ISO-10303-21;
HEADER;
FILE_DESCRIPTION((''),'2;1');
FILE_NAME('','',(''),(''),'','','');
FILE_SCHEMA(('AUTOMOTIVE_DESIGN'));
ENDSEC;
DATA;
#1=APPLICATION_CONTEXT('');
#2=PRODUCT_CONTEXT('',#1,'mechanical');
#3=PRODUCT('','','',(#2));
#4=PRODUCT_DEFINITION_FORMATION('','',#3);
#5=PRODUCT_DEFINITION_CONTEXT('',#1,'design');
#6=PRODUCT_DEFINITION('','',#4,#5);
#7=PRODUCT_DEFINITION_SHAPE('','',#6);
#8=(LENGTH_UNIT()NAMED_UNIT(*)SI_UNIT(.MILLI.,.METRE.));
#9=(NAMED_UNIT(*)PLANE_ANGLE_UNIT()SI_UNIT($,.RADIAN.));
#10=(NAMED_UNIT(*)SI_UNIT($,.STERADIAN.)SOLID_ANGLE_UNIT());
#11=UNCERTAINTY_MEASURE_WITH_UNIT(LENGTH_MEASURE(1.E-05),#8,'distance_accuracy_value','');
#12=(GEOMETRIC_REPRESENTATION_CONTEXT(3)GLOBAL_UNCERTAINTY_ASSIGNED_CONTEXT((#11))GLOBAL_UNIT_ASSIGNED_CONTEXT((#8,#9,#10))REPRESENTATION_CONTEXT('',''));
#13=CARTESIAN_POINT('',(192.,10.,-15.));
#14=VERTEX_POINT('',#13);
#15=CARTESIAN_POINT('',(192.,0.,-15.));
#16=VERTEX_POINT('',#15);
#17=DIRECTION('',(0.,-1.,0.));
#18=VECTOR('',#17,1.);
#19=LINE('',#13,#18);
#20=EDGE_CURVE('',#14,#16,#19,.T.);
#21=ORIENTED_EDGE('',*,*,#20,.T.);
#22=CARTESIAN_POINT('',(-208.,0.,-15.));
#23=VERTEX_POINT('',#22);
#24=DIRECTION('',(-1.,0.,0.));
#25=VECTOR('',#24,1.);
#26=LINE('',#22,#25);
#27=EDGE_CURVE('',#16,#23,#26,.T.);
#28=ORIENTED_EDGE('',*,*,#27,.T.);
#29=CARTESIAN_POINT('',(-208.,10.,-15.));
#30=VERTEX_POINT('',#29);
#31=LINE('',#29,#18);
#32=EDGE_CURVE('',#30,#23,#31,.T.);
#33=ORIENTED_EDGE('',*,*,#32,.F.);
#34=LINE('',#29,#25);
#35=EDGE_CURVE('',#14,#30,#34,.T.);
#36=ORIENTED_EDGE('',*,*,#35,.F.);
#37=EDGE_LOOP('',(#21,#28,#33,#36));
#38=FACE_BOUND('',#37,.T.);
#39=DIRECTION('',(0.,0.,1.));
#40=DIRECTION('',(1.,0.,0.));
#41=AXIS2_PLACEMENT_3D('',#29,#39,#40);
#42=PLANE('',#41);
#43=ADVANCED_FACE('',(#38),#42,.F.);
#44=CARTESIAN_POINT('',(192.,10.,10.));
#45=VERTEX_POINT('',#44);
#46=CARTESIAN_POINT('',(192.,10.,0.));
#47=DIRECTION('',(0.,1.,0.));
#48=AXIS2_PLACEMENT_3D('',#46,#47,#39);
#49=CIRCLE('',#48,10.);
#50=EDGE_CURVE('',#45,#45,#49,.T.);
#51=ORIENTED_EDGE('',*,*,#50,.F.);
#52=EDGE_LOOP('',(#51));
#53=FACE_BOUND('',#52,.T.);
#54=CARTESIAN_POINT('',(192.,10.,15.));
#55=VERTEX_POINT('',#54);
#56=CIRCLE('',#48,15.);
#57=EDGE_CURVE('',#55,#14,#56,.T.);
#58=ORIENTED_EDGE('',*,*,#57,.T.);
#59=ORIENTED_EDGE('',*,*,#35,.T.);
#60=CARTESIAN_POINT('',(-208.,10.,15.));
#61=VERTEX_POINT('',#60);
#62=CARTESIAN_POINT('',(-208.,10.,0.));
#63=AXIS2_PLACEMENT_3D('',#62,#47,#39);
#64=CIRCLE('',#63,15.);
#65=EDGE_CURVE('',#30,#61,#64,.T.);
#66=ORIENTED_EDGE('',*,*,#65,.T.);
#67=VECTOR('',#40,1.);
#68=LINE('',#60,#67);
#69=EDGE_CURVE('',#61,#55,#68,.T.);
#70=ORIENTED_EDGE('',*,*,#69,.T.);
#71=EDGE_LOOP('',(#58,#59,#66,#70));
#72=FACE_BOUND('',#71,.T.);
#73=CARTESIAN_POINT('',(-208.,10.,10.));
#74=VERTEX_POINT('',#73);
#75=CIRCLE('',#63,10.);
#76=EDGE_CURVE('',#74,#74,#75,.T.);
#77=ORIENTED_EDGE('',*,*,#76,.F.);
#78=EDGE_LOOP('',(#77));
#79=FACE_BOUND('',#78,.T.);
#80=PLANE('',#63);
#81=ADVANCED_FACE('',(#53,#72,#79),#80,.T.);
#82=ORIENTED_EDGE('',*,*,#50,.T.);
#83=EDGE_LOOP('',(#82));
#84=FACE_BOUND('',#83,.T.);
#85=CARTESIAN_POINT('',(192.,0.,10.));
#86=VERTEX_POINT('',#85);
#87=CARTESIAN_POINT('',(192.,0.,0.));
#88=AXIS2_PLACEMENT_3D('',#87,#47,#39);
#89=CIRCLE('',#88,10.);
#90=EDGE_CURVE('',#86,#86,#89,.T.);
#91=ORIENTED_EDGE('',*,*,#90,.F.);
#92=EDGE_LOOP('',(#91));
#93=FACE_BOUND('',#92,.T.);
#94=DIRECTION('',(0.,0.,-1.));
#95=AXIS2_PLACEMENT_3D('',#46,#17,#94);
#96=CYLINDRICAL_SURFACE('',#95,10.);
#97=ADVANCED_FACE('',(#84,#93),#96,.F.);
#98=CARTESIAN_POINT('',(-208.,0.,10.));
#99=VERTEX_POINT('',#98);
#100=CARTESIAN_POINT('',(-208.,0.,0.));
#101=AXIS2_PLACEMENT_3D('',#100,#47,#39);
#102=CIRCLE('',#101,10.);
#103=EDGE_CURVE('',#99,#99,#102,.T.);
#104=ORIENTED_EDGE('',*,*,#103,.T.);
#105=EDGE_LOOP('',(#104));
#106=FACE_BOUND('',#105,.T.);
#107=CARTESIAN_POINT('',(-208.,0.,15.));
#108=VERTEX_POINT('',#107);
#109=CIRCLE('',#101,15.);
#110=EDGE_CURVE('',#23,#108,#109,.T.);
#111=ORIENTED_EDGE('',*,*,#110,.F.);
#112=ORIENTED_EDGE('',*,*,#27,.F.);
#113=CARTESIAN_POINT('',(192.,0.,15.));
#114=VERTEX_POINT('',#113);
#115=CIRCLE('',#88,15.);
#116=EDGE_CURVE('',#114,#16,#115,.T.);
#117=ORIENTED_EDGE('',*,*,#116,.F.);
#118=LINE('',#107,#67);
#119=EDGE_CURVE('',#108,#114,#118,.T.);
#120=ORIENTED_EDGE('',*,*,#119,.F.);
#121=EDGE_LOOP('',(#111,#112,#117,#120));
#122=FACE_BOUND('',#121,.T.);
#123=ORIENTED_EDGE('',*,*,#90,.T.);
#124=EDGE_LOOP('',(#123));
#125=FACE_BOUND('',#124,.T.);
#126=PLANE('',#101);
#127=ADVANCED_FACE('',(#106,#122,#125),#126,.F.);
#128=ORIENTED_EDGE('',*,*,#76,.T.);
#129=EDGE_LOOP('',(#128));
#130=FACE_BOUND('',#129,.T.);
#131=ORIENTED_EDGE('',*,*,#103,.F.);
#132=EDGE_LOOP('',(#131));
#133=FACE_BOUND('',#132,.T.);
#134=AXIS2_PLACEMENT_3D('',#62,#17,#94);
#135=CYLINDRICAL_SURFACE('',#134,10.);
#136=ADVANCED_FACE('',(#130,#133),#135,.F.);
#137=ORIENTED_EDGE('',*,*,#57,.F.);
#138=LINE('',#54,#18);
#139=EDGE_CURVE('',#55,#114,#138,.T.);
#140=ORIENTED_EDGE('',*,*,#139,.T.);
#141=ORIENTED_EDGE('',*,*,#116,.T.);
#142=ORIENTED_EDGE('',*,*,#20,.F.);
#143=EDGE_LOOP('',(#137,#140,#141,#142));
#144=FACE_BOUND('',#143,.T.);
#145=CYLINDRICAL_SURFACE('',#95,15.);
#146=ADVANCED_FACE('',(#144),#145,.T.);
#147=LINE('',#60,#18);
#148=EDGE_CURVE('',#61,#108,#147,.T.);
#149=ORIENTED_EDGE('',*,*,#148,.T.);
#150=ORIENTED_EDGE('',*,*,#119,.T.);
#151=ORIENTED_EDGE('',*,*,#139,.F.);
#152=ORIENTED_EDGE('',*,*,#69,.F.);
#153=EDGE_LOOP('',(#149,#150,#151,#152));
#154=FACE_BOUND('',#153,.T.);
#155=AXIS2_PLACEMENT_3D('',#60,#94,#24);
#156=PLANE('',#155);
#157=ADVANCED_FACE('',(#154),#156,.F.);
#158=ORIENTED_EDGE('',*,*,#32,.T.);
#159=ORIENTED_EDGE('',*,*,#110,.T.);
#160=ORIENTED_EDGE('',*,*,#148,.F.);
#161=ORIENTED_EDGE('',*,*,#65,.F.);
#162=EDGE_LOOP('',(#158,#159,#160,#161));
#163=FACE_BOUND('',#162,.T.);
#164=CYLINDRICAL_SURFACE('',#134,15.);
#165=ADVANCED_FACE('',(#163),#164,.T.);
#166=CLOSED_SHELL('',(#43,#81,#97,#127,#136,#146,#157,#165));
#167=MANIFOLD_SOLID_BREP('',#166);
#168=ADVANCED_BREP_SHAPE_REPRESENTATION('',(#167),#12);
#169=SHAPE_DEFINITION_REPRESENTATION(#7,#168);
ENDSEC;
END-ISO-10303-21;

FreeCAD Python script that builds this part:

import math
import FreeCAD as App
import Part
import Sketcher

V = App.Vector
Q = App.Units.Quantity

doc = App.newDocument("Part")
params = doc.addObject("Spreadsheet::Sheet", "Params")
for row, (alias, value) in enumerate([
    ("sketch1_diameter", "20 mm"),
    ("sketch1_radius", "15 mm"),
    ("sketch1_width", "400 mm"),
    ("pad1_length", "10 mm"),
], start=1):
    params.set(f"A{row}", alias)
    params.set(f"B{row}", "=" + value)
    params.setAlias(f"B{row}", alias)

body = doc.addObject("PartDesign::Body", "Body")

# Sketch on XZ plane
sketch1 = doc.addObject("Sketcher::SketchObject", "Sketch")
body.addObject(sketch1)
sketch1.AttachmentSupport = (doc.XZ_Plane, [""])
sketch1.MapMode = "FlatFace"
sketch1.addGeometry([
    Part.LineSegment(V(192, -15, 0), V(-208, -15, 0)),  # 0
    Part.ArcOfCircle(Part.Circle(V(-208, 0, 0), V(0, 0, 1), 15), math.radians(90), math.radians(270)),  # 1
    Part.LineSegment(V(-208, 15, 0), V(192, 15, 0)),  # 2
    Part.ArcOfCircle(Part.Circle(V(192, 0, 0), V(0, 0, 1), 15), math.radians(-90), math.radians(90)),  # 3
    Part.Circle(V(192, 0, 0), V(0, 0, 1), 10),  # 4
    Part.Circle(V(-208, 0, 0), V(0, 0, 1), 10),  # 5
], False)
sketch1.addConstraint([
    Sketcher.Constraint("Tangent", 0, 2, 1, 2),
    Sketcher.Constraint("Tangent", 1, 1, 2, 1),
    Sketcher.Constraint("Tangent", 2, 2, 3, 2),
    Sketcher.Constraint("Tangent", 3, 1, 0, 1),
    Sketcher.Constraint("Horizontal", 0),
    Sketcher.Constraint("Horizontal", 2),
    Sketcher.Constraint("Coincident", 4, 3, 3, 3),
    Sketcher.Constraint("Coincident", 5, 3, 1, 3),
    Sketcher.Constraint("Equal", 4, 5),
    Sketcher.Constraint("PointOnObject", 1, 3, -1),
    Sketcher.Constraint("Diameter", 4, Q("20 mm")),
    Sketcher.Constraint("Radius", 1, Q("15 mm")),
    Sketcher.Constraint("DistanceX", 0, 2, 0, 1, Q("400 mm")),
    Sketcher.Constraint("DistanceX", 1, 3, -1, 1, Q("208 mm")),
])
sketch1.setExpression("Constraints[10]", "Params.sketch1_diameter")
sketch1.setExpression("Constraints[11]", "Params.sketch1_radius")
sketch1.setExpression("Constraints[12]", "Params.sketch1_width")
pad1 = doc.addObject("PartDesign::Pad", "Pad")
body.addObject(pad1)
pad1.Profile = sketch1
pad1.setExpression("Length", "Params.pad1_length")
pad1.Reversed = True

doc.recompute()
